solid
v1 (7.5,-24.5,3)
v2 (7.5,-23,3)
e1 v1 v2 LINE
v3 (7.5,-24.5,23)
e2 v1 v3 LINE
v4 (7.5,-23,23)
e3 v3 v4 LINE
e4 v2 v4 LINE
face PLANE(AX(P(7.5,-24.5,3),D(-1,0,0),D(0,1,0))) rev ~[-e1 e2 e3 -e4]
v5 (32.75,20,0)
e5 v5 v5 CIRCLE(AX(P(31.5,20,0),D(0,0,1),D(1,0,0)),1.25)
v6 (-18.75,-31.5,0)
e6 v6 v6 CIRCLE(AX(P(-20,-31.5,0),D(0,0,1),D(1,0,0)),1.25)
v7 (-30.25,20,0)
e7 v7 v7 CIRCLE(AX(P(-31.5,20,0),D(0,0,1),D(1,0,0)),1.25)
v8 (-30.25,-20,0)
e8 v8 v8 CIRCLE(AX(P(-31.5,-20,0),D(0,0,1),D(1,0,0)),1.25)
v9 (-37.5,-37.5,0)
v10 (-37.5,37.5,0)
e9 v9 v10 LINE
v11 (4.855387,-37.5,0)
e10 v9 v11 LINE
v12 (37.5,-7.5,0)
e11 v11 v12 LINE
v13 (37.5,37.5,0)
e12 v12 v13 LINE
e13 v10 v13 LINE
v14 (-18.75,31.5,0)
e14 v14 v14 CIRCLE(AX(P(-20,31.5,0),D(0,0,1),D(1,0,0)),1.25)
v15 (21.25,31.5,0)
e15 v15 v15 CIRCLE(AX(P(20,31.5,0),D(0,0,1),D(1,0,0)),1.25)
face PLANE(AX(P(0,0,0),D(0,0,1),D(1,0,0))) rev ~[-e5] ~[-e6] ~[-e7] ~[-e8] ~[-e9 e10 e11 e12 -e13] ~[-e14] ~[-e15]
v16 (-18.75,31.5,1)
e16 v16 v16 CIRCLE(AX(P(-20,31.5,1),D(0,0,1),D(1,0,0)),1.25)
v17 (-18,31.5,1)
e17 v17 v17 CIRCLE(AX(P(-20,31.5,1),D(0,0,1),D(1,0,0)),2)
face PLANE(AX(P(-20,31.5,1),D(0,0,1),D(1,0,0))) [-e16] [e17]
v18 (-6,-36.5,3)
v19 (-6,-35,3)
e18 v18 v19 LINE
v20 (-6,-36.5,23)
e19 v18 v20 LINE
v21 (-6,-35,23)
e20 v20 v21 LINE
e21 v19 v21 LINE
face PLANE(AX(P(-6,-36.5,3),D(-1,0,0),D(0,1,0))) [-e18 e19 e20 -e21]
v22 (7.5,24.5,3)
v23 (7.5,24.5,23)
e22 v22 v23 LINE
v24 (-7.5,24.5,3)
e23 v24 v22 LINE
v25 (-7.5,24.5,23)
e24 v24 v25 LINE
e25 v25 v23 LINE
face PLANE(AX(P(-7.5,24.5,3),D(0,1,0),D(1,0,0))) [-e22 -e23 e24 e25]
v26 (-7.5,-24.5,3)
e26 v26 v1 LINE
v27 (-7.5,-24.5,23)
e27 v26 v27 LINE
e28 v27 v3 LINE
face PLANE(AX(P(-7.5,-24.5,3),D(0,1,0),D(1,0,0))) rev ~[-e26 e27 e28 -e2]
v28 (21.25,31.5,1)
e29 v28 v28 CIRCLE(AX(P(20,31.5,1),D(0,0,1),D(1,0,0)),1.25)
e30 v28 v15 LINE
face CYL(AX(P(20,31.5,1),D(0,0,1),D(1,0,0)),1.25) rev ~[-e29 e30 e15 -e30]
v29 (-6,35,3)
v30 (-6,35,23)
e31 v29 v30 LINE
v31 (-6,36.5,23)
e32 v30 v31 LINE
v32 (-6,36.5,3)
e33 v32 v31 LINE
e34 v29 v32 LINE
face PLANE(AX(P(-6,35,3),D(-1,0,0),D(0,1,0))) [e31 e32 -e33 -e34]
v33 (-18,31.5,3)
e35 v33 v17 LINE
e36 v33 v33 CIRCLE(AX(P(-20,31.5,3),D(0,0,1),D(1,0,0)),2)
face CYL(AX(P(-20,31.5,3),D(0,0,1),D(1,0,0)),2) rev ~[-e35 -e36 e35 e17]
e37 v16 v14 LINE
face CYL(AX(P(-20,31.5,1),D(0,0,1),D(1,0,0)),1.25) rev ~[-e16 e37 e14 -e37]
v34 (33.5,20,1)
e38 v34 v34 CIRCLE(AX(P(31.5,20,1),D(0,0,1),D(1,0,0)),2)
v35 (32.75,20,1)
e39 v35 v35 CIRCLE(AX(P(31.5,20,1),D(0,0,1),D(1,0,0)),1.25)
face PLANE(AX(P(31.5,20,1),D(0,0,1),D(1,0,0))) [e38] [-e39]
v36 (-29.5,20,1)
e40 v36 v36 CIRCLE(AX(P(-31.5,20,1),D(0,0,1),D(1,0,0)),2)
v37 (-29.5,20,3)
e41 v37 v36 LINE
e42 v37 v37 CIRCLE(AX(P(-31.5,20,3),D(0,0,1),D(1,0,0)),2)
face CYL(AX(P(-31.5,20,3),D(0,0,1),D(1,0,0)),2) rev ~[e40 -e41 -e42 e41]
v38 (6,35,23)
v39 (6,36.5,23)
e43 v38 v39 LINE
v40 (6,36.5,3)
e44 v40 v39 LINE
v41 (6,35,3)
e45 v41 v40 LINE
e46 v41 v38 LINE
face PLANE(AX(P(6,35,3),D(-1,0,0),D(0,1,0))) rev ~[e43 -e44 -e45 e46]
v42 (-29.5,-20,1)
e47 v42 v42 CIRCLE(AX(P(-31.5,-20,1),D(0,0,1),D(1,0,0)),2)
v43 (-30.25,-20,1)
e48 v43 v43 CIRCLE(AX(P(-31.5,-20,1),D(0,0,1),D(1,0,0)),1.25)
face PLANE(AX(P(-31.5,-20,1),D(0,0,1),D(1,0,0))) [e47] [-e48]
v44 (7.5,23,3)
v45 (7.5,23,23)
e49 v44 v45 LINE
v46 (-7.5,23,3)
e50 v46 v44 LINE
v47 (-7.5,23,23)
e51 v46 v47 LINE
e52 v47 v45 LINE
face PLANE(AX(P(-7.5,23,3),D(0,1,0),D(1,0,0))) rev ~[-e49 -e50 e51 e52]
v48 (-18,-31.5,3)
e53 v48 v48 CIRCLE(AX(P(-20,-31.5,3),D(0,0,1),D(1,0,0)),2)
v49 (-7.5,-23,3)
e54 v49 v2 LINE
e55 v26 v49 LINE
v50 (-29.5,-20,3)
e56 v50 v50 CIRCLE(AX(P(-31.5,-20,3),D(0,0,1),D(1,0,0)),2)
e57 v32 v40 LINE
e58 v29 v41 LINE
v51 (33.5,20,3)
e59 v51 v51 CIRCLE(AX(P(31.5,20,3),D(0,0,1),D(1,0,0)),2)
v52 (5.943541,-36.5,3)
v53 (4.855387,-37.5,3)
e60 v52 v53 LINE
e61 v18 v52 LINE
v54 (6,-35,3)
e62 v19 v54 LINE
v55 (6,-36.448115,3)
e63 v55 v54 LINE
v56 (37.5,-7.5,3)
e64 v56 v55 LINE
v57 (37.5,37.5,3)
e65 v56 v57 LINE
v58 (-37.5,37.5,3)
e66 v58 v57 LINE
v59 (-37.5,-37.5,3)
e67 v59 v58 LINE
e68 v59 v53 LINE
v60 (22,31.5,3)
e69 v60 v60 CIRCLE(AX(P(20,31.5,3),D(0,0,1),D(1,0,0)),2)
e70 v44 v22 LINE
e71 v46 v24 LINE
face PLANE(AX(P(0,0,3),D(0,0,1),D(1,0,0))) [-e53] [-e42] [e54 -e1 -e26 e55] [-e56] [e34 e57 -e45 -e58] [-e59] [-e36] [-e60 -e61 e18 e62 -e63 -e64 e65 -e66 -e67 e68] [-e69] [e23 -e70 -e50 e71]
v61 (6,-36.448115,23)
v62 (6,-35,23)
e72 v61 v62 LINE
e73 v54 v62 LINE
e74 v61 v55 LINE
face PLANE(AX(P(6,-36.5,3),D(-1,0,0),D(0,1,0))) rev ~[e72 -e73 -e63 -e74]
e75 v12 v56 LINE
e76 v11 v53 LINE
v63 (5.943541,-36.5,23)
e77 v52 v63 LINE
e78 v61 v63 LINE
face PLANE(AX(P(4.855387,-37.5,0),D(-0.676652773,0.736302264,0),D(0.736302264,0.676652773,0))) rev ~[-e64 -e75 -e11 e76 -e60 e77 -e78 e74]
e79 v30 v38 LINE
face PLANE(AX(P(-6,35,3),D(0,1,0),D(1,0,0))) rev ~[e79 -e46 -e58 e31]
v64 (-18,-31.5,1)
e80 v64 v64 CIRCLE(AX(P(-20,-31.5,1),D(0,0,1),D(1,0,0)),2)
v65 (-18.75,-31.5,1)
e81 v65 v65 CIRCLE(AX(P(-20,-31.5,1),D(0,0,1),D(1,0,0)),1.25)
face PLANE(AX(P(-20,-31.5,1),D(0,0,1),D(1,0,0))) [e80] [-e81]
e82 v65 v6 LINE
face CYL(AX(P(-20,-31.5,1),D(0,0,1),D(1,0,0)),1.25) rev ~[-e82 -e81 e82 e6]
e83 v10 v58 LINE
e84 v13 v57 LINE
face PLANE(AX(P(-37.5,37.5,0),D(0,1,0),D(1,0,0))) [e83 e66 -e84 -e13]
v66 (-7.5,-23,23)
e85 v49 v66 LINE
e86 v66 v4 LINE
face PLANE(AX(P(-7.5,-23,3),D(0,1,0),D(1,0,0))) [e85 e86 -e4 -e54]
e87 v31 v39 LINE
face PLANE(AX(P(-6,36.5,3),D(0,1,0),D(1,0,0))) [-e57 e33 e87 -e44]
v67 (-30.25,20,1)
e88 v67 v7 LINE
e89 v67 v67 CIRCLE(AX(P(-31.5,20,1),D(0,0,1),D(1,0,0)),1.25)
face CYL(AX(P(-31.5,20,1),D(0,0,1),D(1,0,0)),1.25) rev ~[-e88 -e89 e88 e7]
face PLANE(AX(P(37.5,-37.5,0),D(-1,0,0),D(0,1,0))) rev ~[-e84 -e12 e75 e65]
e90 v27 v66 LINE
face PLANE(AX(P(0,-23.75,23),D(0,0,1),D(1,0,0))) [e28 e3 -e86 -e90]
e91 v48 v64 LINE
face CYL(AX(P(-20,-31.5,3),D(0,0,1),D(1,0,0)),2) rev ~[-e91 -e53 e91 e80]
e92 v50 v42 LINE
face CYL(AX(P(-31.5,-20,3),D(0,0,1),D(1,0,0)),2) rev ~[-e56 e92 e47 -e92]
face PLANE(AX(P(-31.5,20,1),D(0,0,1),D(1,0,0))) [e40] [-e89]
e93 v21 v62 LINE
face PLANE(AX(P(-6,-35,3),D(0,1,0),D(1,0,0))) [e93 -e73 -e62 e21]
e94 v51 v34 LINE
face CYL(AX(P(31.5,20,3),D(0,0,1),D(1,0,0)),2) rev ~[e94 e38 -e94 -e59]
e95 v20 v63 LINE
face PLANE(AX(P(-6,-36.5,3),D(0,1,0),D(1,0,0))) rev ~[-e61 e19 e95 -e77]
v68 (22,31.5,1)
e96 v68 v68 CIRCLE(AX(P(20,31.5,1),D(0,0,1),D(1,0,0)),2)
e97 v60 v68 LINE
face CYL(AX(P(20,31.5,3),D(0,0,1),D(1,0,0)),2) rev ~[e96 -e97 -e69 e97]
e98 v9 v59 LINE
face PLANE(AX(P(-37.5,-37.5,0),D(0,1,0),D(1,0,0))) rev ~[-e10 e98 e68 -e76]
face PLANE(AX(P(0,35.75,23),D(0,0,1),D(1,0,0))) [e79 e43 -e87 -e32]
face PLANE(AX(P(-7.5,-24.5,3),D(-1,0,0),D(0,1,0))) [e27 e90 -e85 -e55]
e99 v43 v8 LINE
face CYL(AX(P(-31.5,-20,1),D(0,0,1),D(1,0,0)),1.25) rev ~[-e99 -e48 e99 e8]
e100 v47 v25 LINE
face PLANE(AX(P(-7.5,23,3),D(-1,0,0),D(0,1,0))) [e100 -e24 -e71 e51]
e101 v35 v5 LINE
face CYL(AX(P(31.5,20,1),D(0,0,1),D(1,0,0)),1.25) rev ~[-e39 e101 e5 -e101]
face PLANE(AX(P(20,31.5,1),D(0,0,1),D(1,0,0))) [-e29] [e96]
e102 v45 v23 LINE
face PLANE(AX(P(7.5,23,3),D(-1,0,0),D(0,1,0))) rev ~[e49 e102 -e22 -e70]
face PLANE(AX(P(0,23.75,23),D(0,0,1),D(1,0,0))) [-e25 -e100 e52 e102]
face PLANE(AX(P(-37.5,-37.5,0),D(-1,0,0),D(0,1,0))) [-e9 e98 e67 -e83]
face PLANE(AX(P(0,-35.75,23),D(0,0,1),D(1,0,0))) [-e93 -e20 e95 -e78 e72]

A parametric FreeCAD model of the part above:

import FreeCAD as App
import Part
import Sketcher
from FreeCAD import Vector


def add_polygon(sketch, points):
    """Adds a closed chain of lines whose ends are joined by coincident constraints."""
    first, n = sketch.GeometryCount, len(points)
    for a, b in zip(points, points[1:] + points[:1]):
        sketch.addGeometry(Part.LineSegment(App.Vector(*a, 0), App.Vector(*b, 0)), False)
    for i in range(n):
        sketch.addConstraint(Sketcher.Constraint("Coincident", first + i, 2, first + (i + 1) % n, 1))

doc = App.newDocument("Part")
body = doc.addObject("PartDesign::Body", "Body")

# Sketch on XY plane
sketch1 = doc.addObject("Sketcher::SketchObject", "Sketch")
body.addObject(sketch1)
sketch1.AttachmentSupport = (doc.XY_Plane, [""])
sketch1.MapMode = "FlatFace"
add_polygon(sketch1, [(-38, 38), (-38, -38), (38, -38), (38, 38)])  # lines 0-3
sketch1.addConstraint([
    Sketcher.Constraint("Vertical", 0),
    Sketcher.Constraint("Horizontal", 1),
    Sketcher.Constraint("Vertical", 2),
    Sketcher.Constraint("Horizontal", 3),
    Sketcher.Constraint("Symmetric", 0, 2, 2, 2, -1, 1),
    Sketcher.Constraint("Equal", 3, 0),
    Sketcher.Constraint("DistanceX", 1, 1, 1, 2, 75.0),
])
pad1 = doc.addObject("PartDesign::Pad", "Pad")
body.addObject(pad1)
pad1.Profile = sketch1
pad1.Length = 3

# Sketch on XY plane
sketch2 = doc.addObject("Sketcher::SketchObject", "Sketch001")
body.addObject(sketch2)
sketch2.AttachmentSupport = (doc.XY_Plane, [""])
sketch2.MapMode = "FlatFace"
sketch2.AttachmentOffset = App.Placement(Vector(0, 0, 3), App.Rotation())
sketch2.addGeometry([
    Part.Circle(Vector(31.5, -20, 0), Vector(0, 0, 1), 2),  # 0
    Part.Circle(Vector(20, -31.5, 0), Vector(0, 0, 1), 2),  # 1
    Part.Circle(Vector(31.5, 20, 0), Vector(0, 0, 1), 2),  # 2
    Part.Circle(Vector(20, 31.5, 0), Vector(0, 0, 1), 2),  # 3
    Part.Circle(Vector(-20, 31.5, 0), Vector(0, 0, 1), 2),  # 4
    Part.Circle(Vector(-31.5, 20, 0), Vector(0, 0, 1), 2),  # 5
    Part.Circle(Vector(-20, -31.5, 0), Vector(0, 0, 1), 2),  # 6
    Part.Circle(Vector(-31.5, -20, 0), Vector(0, 0, 1), 2),  # 7
], False)
sketch2.addConstraint([
    Sketcher.Constraint("Equal", 0, 1),
    Sketcher.Constraint("Equal", 1, 2),
    Sketcher.Constraint("Equal", 2, 3),
    Sketcher.Constraint("Equal", 3, 4),
    Sketcher.Constraint("Equal", 4, 5),
    Sketcher.Constraint("Equal", 5, 6),
    Sketcher.Constraint("Equal", 6, 7),
    Sketcher.Constraint("Symmetric", 1, 3, 4, 3, -1, 1),
    Sketcher.Constraint("Symmetric", 0, 3, 5, 3, -1, 1),
    Sketcher.Constraint("Symmetric", 3, 3, 6, 3, -1, 1),
    Sketcher.Constraint("Symmetric", 2, 3, 7, 3, -1, 1),
    Sketcher.Constraint("Symmetric", 3, 3, 4, 3, -2),
    Sketcher.Constraint("Symmetric", 2, 3, 5, 3, -2),
    Sketcher.Constraint("Diameter", 0, 4.0),
    Sketcher.Constraint("DistanceY", 0, 3, -1, 1, 20.0),
    Sketcher.Constraint("DistanceX", -1, 1, 1, 3, 20.0),
    Sketcher.Constraint("DistanceY", 1, 3, 3, 3, 63.0),
    Sketcher.Constraint("DistanceX", 5, 3, 2, 3, 63.0),
])
pocket1 = doc.addObject("PartDesign::Pocket", "Pocket")
body.addObject(pocket1)
pocket1.Profile = sketch2
pocket1.Length = 2

# Sketch on XY plane
sketch3 = doc.addObject("Sketcher::SketchObject", "Sketch002")
body.addObject(sketch3)
sketch3.AttachmentSupport = (doc.XY_Plane, [""])
sketch3.MapMode = "FlatFace"
sketch3.AttachmentOffset = App.Placement(Vector(0, 0, 1), App.Rotation())
sketch3.addGeometry([
    Part.Circle(Vector(-31.5, 20, 0), Vector(0, 0, 1), 1.2),  # 0
    Part.Circle(Vector(-20, 31.5, 0), Vector(0, 0, 1), 1.2),  # 1
    Part.Circle(Vector(20, 31.5, 0), Vector(0, 0, 1), 1.2),  # 2
    Part.Circle(Vector(31.5, 20, 0), Vector(0, 0, 1), 1.2),  # 3
    Part.Circle(Vector(-31.5, -20, 0), Vector(0, 0, 1), 1.2),  # 4
    Part.Circle(Vector(31.5, -20, 0), Vector(0, 0, 1), 1.2),  # 5
    Part.Circle(Vector(20, -31.5, 0), Vector(0, 0, 1), 1.2),  # 6
    Part.Circle(Vector(-20, -31.5, 0), Vector(0, 0, 1), 1.2),  # 7
], False)
sketch3.addConstraint([
    Sketcher.Constraint("Equal", 0, 1),
    Sketcher.Constraint("Equal", 1, 2),
    Sketcher.Constraint("Equal", 2, 3),
    Sketcher.Constraint("Equal", 3, 4),
    Sketcher.Constraint("Equal", 4, 5),
    Sketcher.Constraint("Equal", 5, 6),
    Sketcher.Constraint("Equal", 6, 7),
    Sketcher.Constraint("Symmetric", 3, 3, 4, 3, -1, 1),
    Sketcher.Constraint("Symmetric", 0, 3, 5, 3, -1, 1),
    Sketcher.Constraint("Symmetric", 1, 3, 6, 3, -1, 1),
    Sketcher.Constraint("Symmetric", 2, 3, 7, 3, -1, 1),
    Sketcher.Constraint("Symmetric", 1, 3, 2, 3, -2),
    Sketcher.Constraint("Symmetric", 0, 3, 3, 3, -2),
    Sketcher.Constraint("Diameter", 0, 2.5),
    Sketcher.Constraint("DistanceY", -1, 1, 0, 3, 20.0),
    Sketcher.Constraint("DistanceX", 1, 3, -1, 1, 20.0),
    Sketcher.Constraint("DistanceX", 0, 3, 3, 3, 63.0),
    Sketcher.Constraint("DistanceY", 6, 3, 2, 3, 63.0),
])
pocket2 = doc.addObject("PartDesign::Pocket", "Pocket001")
body.addObject(pocket2)
pocket2.Profile = sketch3
pocket2.Type = "ThroughAll"

# Sketch on XY plane
sketch4 = doc.addObject("Sketcher::SketchObject", "Sketch003")
body.addObject(sketch4)
sketch4.AttachmentSupport = (doc.XY_Plane, [""])
sketch4.MapMode = "FlatFace"
sketch4.AttachmentOffset = App.Placement(Vector(0, 0, 3), App.Rotation())
add_polygon(sketch4, [(-7.5, -23), (-7.5, -24.5), (7.5, -24.5), (7.5, -23)])  # lines 0-3
add_polygon(sketch4, [(-7.5, 24.5), (-7.5, 23), (7.5, 23), (7.5, 24.5)])  # lines 4-7
sketch4.addConstraint([
    Sketcher.Constraint("Vertical", 0),
    Sketcher.Constraint("Horizontal", 1),
    Sketcher.Constraint("Vertical", 2),
    Sketcher.Constraint("Horizontal", 3),
    Sketcher.Constraint("Vertical", 4),
    Sketcher.Constraint("Horizontal", 5),
    Sketcher.Constraint("Vertical", 6),
    Sketcher.Constraint("Horizontal", 7),
    Sketcher.Constraint("Symmetric", 2, 2, 4, 2, -1, 1),
    Sketcher.Constraint("Symmetric", 0, 2, 6, 2, -1, 1),
    Sketcher.Constraint("Vertical", 3, 2, 4, 2),
    Sketcher.Constraint("DistanceX", 1, 1, 1, 2, 15.0),
    Sketcher.Constraint("DistanceY", 0, 2, 0, 1, 1.5),
    Sketcher.Constraint("DistanceY", 2, 2, -1, 1, 23.0),
])
pad2 = doc.addObject("PartDesign::Pad", "Pad001")
body.addObject(pad2)
pad2.Profile = sketch4
pad2.Length = 20

# Sketch on XY plane
sketch5 = doc.addObject("Sketcher::SketchObject", "Sketch004")
body.addObject(sketch5)
sketch5.AttachmentSupport = (doc.XY_Plane, [""])
sketch5.MapMode = "FlatFace"
sketch5.AttachmentOffset = App.Placement(Vector(0, 0, 3), App.Rotation())
add_polygon(sketch5, [(-6, -35), (-6, -36.5), (6, -36.5), (6, -35)])  # lines 0-3
add_polygon(sketch5, [(-6, 36.5), (-6, 35), (6, 35), (6, 36.5)])  # lines 4-7
sketch5.addConstraint([
    Sketcher.Constraint("Vertical", 0),
    Sketcher.Constraint("Horizontal", 1),
    Sketcher.Constraint("Vertical", 2),
    Sketcher.Constraint("Horizontal", 3),
    Sketcher.Constraint("Vertical", 4),
    Sketcher.Constraint("Horizontal", 5),
    Sketcher.Constraint("Vertical", 6),
    Sketcher.Constraint("Horizontal", 7),
    Sketcher.Constraint("Symmetric", 2, 2, 4, 2, -1, 1),
    Sketcher.Constraint("Symmetric", 0, 2, 6, 2, -1, 1),
    Sketcher.Constraint("Vertical", 3, 2, 4, 2),
    Sketcher.Constraint("DistanceX", 1, 1, 1, 2, 12.0),
    Sketcher.Constraint("DistanceY", 0, 2, 0, 1, 1.5),
    Sketcher.Constraint("DistanceY", 2, 2, -1, 1, 35.0),
])
pad3 = doc.addObject("PartDesign::Pad", "Pad002")
body.addObject(pad3)
pad3.Profile = sketch5
pad3.Length = 20

# Sketch on XY plane
sketch6 = doc.addObject("Sketcher::SketchObject", "Sketch005")
body.addObject(sketch6)
sketch6.AttachmentSupport = (doc.XY_Plane, [""])
sketch6.MapMode = "FlatFace"
add_polygon(sketch6, [(37.5, -37.5), (4.9, -37.5), (37.5, -7.5)])  # lines 0-2
sketch6.addGeometry(Part.Circle(Vector(31.5, -20, 0), Vector(0, 0, 1), 1.2), False)  # 3
sketch6.addGeometry(Part.Circle(Vector(20, -31.5, 0), Vector(0, 0, 1), 1.2), False)  # 4
sketch6.addConstraint([
    Sketcher.Constraint("Horizontal", 0),
    Sketcher.Constraint("Vertical", 2),
    Sketcher.Constraint("Equal", 3, 4),
    Sketcher.Constraint("Diameter", 3, 2.5),
    Sketcher.Constraint("DistanceY", 2, 2, 2, 1, 30.0),
    Sketcher.Constraint("DistanceY", 3, 3, -1, 1, 20.0),
    Sketcher.Constraint("DistanceX", -1, 1, 4, 3, 20.0),
    Sketcher.Constraint("DistanceY", 0, 2, 4, 3, 6.0),
    Sketcher.Constraint("DistanceX", 3, 3, 1, 2, 6.0),
    Sketcher.Constraint("DistanceX", -1, 1, 3, 3, 31.5),
    Sketcher.Constraint("DistanceY", 4, 3, -1, 1, 31.5),
    Sketcher.Constraint("DistanceX", 0, 2, 0, 1, 32.644613),
])
pocket3 = doc.addObject("PartDesign::Pocket", "Pocket002")
body.addObject(pocket3)
pocket3.Profile = sketch6
pocket3.Type = "ThroughAll"
pocket3.Reversed = True

doc.recompute()
